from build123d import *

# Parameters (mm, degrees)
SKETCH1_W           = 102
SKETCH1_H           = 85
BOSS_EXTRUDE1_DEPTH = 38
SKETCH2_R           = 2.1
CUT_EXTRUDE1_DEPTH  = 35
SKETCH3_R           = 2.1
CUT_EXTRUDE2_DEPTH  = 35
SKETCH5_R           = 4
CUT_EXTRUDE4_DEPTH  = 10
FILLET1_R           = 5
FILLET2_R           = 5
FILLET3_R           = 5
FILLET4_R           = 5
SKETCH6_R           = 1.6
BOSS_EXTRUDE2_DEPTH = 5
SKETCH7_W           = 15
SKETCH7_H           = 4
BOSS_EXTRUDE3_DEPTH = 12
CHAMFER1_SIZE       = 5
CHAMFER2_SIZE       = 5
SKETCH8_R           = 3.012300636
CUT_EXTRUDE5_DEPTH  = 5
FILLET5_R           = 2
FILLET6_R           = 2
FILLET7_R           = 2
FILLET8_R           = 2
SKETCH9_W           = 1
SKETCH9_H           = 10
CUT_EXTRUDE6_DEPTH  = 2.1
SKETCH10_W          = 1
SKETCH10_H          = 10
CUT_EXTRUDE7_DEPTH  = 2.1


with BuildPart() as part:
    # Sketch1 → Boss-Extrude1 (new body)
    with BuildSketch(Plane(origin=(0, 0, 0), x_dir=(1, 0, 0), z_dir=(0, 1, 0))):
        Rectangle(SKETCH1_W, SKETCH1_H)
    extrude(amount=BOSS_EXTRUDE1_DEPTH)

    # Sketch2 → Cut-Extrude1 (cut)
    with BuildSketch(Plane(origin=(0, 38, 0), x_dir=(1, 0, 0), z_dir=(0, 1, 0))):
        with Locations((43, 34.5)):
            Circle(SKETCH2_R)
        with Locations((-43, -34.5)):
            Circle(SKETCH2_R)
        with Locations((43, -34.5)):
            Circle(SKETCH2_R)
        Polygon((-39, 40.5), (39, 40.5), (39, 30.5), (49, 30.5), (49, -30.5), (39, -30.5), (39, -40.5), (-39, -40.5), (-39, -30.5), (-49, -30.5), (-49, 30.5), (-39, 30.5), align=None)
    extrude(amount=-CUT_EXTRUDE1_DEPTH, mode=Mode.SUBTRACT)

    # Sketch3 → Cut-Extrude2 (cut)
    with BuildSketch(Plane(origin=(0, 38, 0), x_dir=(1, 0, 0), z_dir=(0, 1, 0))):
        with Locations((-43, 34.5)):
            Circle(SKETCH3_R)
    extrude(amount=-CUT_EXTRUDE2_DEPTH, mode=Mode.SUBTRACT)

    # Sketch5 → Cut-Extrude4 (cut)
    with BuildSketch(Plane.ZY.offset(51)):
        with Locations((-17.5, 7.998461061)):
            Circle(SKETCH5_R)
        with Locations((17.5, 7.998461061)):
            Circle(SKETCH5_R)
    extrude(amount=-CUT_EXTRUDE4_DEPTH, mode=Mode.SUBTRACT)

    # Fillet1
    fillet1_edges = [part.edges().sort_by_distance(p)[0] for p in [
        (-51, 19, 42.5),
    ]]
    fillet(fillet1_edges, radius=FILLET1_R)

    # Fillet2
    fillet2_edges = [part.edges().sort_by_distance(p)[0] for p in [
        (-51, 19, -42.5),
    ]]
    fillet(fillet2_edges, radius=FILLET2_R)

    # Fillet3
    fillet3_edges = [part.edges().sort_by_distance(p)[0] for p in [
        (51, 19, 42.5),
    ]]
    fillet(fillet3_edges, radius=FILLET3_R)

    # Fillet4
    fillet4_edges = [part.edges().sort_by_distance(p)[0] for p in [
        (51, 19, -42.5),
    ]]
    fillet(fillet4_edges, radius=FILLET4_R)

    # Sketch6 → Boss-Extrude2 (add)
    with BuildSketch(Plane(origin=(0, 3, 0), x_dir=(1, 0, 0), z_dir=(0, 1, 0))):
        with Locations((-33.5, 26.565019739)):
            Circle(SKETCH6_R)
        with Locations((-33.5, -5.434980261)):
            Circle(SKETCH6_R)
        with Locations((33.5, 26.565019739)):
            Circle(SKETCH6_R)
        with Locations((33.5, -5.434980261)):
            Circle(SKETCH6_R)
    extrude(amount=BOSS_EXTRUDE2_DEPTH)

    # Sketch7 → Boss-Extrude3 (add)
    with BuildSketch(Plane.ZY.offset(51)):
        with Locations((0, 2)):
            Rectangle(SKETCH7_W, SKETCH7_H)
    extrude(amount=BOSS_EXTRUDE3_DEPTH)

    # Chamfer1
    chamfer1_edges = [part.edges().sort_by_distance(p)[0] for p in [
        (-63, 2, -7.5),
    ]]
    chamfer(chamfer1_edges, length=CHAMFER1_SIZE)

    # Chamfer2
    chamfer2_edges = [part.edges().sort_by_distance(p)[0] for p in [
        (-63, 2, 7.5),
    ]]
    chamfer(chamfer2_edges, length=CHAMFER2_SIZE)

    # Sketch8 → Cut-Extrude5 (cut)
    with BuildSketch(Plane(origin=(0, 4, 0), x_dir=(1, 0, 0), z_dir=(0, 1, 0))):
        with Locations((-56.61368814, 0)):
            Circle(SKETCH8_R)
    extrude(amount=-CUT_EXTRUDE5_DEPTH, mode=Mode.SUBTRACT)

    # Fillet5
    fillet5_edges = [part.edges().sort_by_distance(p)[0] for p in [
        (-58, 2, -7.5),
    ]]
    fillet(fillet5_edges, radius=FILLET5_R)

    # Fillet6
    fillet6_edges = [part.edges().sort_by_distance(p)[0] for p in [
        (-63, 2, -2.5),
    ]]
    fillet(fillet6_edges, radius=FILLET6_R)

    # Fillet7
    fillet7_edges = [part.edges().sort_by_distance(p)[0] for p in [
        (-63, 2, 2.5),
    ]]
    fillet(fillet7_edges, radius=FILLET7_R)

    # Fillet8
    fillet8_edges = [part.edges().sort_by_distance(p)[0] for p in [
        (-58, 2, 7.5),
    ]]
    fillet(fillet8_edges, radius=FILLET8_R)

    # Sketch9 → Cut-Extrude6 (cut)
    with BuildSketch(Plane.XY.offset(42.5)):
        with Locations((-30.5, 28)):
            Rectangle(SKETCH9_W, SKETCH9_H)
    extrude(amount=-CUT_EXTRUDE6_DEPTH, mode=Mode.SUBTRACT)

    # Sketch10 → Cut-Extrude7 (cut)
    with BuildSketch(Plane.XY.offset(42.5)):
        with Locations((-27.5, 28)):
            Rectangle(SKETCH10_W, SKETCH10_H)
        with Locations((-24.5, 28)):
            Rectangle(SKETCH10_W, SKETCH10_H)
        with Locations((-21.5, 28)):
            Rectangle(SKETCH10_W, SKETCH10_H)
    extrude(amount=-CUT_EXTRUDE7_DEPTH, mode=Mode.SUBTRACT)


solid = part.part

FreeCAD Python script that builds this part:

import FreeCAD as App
import Part
import Sketcher

V = App.Vector


def edges_at(feature, points):
    """Names of the edges that pass closest to the given points."""
    edges = feature.Shape.Edges
    near = lambda p: min(range(len(edges)), key=lambda i: edges[i].distToShape(Part.Vertex(*p))[0])
    return sorted({f"Edge{near(p) + 1}" for p in points})


def add_polygon(sketch, points):
    """Adds a closed chain of lines whose ends are joined by coincident constraints."""
    first, n = sketch.GeometryCount, len(points)
    for a, b in zip(points, points[1:] + points[:1]):
        sketch.addGeometry(Part.LineSegment(App.Vector(*a, 0), App.Vector(*b, 0)), False)
    for i in range(n):
        sketch.addConstraint(Sketcher.Constraint("Coincident", first + i, 2, first + (i + 1) % n, 1))

doc = App.newDocument("Part")
params = doc.addObject("Spreadsheet::Sheet", "Params")
for row, (alias, value) in enumerate([
    ("sketch1_width", "102 mm"),
    ("sketch1_height", "85 mm"),
    ("pad1_length", "38 mm"),
    ("sketch2_diameter", "4.2 mm"),
    ("sketch2_width", "78 mm"),
    ("sketch2_width2", "10 mm"),
    ("sketch2_height", "61 mm"),
    ("pocket1_length", "35 mm"),
    ("sketch3_diameter", "4.2 mm"),
    ("pocket2_length", "35 mm"),
    ("sketch4_diameter", "8 mm"),
    ("pocket3_length", "10 mm"),
    ("fillet_radius", "5 mm"),
    ("fillet2_radius", "5 mm"),
    ("fillet3_radius", "5 mm"),
    ("fillet4_radius", "5 mm"),
    ("sketch5_diameter", "3.2 mm"),
    ("pad2_length", "5 mm"),
    ("sketch6_width", "4 mm"),
    ("sketch6_height", "15 mm"),
    ("pad3_length", "12 mm"),
    ("chamfer_size", "5 mm"),
    ("chamfer2_size", "5 mm"),
    ("pocket4_length", "5 mm"),
    ("fillet5_radius", "2 mm"),
    ("fillet6_radius", "2 mm"),
    ("fillet7_radius", "2 mm"),
    ("fillet8_radius", "2 mm"),
    ("sketch8_width", "1 mm"),
    ("sketch8_height", "10 mm"),
    ("pocket5_length", "2.1 mm"),
    ("sketch9_width", "1 mm"),
    ("sketch9_height", "10 mm"),
    ("pocket6_length", "2.1 mm"),
], start=1):
    params.set(f"A{row}", alias)
    params.set(f"B{row}", "=" + value)
    params.setAlias(f"B{row}", alias)

body = doc.addObject("PartDesign::Body", "Body")

sketch1 = body.newObject("Sketcher::SketchObject", "Sketch")
sketch1.AttachmentSupport = (doc.getObject("XZ_Plane"), [""])
sketch1.MapMode = "FlatFace"
add_polygon(sketch1, [(-51, -42), (-51, 42), (51, 42), (51, -42)])
sketch1.addConstraint([
    Sketcher.Constraint("Vertical", 0),
    Sketcher.Constraint("Horizontal", 1),
    Sketcher.Constraint("Vertical", 2),
    Sketcher.Constraint("Horizontal", 3),
    Sketcher.Constraint("Symmetric", 0, 2, 2, 2, -1, 1),
    Sketcher.Constraint("DistanceX", 1, 1, 1, 2, 102.0),
    Sketcher.Constraint("DistanceY", 0, 1, 0, 2, 85.0),
])
sketch1.setExpression("Constraints[9]", "Params.sketch1_width")
sketch1.setExpression("Constraints[10]", "Params.sketch1_height")
pad1 = body.newObject("PartDesign::Pad", "Pad")
pad1.Profile = sketch1
pad1.setExpression("Length", "Params.pad1_length")
pad1.Reversed = True

sketch2 = body.newObject("Sketcher::SketchObject", "Sketch001")
sketch2.AttachmentSupport = (doc.getObject("XZ_Plane"), [""])
sketch2.MapMode = "FlatFace"
sketch2.AttachmentOffset = App.Placement(V(0, 0, -38), App.Rotation())
sketch2.addGeometry(Part.Circle(V(43, -34.5, 0), V(0, 0, 1), 2.1), False)
sketch2.addGeometry(Part.Circle(V(-43, 34.5, 0), V(0, 0, 1), 2.1), False)
sketch2.addGeometry(Part.Circle(V(43, 34.5, 0), V(0, 0, 1), 2.1), False)
add_polygon(sketch2, [(39, -40.5), (-39, -40.5), (-39, -30.5), (-49, -30.5), (-49, 30.5), (-39, 30.5), (-39, 40.5), (39, 40.5), (39, 30.5), (49, 30.5), (49, -30.5), (39, -30.5)])
sketch2.addConstraint([
    Sketcher.Constraint("Horizontal", 3),
    Sketcher.Constraint("Vertical", 4),
    Sketcher.Constraint("Horizontal", 5),
    Sketcher.Constraint("Vertical", 6),
    Sketcher.Constraint("Horizontal", 7),
    Sketcher.Constraint("Vertical", 8),
    Sketcher.Constraint("Horizontal", 9),
    Sketcher.Constraint("Vertical", 10),
    Sketcher.Constraint("Horizontal", 11),
    Sketcher.Constraint("Vertical", 12),
    Sketcher.Constraint("Horizontal", 13),
    Sketcher.Constraint("Vertical", 14),
    Sketcher.Constraint("Equal", 0, 1),
    Sketcher.Constraint("Equal", 1, 2),
    Sketcher.Constraint("Symmetric", 0, 3, 1, 3, -1, 1),
    Sketcher.Constraint("Symmetric", 3, 2, 9, 2, -1, 1),
    Sketcher.Constraint("Symmetric", 5, 2, 11, 2, -1, 1),
    Sketcher.Constraint("Symmetric", 7, 2, 13, 2, -1, 1),
    Sketcher.Constraint("Symmetric", 1, 3, 2, 3, -2),
    Sketcher.Constraint("Symmetric", 7, 2, 10, 2, -2),
    Sketcher.Constraint("Equal", 13, 4),
    Sketcher.Constraint("Diameter", 0, 4.2),
    Sketcher.Constraint("DistanceX", 3, 2, 3, 1, 78.0),
    Sketcher.Constraint("DistanceX", 5, 2, 5, 1, 10.0),
    Sketcher.Constraint("DistanceY", 6, 1, 6, 2, 61.0),
    Sketcher.Constraint("DistanceX", -1, 1, 0, 3, 43.0),
    Sketcher.Constraint("DistanceY", 0, 3, 1, 3, 69.0),
])
sketch2.setExpression("Constraints[33]", "Params.sketch2_diameter")
sketch2.setExpression("Constraints[34]", "Params.sketch2_width")
sketch2.setExpression("Constraints[35]", "Params.sketch2_width2")
sketch2.setExpression("Constraints[36]", "Params.sketch2_height")
pocket1 = body.newObject("PartDesign::Pocket", "Pocket")
pocket1.Profile = sketch2
pocket1.setExpression("Length", "Params.pocket1_length")
pocket1.Reversed = True

sketch3 = body.newObject("Sketcher::SketchObject", "Sketch002")
sketch3.AttachmentSupport = (doc.getObject("XZ_Plane"), [""])
sketch3.MapMode = "FlatFace"
sketch3.AttachmentOffset = App.Placement(V(0, 0, -38), App.Rotation())
sketch3.addGeometry(Part.Circle(V(-43, -34.5, 0), V(0, 0, 1), 2.1), False)
sketch3.addConstraint([
    Sketcher.Constraint("Diameter", 0, 4.2),
    Sketcher.Constraint("DistanceX", 0, 3, -1, 1, 43.0),
    Sketcher.Constraint("DistanceY", 0, 3, -1, 1, 34.5),
])
sketch3.setExpression("Constraints[0]", "Params.sketch3_diameter")
pocket2 = body.newObject("PartDesign::Pocket", "Pocket001")
pocket2.Profile = sketch3
pocket2.setExpression("Length", "Params.pocket2_length")
pocket2.Reversed = True

sketch4 = body.newObject("Sketcher::SketchObject", "Sketch003")
sketch4.AttachmentSupport = (doc.getObject("YZ_Plane"), [""])
sketch4.MapMode = "FlatFace"
sketch4.AttachmentOffset = App.Placement(V(0, 0, -51), App.Rotation())
sketch4.addGeometry([
    Part.Circle(V(8, -17.5, 0), V(0, 0, 1), 4),
    Part.Circle(V(8, 17.5, 0), V(0, 0, 1), 4),
], False)
sketch4.addConstraint([
    Sketcher.Constraint("Equal", 0, 1),
    Sketcher.Constraint("Symmetric", 0, 3, 1, 3, -1),
    Sketcher.Constraint("Diameter", 0, 8.0),
    Sketcher.Constraint("DistanceY", 0, 3, 1, 3, 35.0),
    Sketcher.Constraint("DistanceX", -1, 1, 0, 3, 7.998461),
])
sketch4.setExpression("Constraints[2]", "Params.sketch4_diameter")
pocket3 = body.newObject("PartDesign::Pocket", "Pocket002")
pocket3.Profile = sketch4
pocket3.setExpression("Length", "Params.pocket3_length")
pocket3.Reversed = True
doc.recompute()

fillet = body.newObject("PartDesign::Fillet", "Fillet")
fillet.Base = (pocket3, edges_at(pocket3, [(-51, 19, 42.5)]))
fillet.setExpression("Radius", "Params.fillet_radius")
doc.recompute()

fillet2 = body.newObject("PartDesign::Fillet", "Fillet001")
fillet2.Base = (fillet, edges_at(fillet, [(-51, 19, -42.5)]))
fillet2.setExpression("Radius", "Params.fillet2_radius")
doc.recompute()

fillet3 = body.newObject("PartDesign::Fillet", "Fillet002")
fillet3.Base = (fillet2, edges_at(fillet2, [(51, 19, 42.5)]))
fillet3.setExpression("Radius", "Params.fillet3_radius")
doc.recompute()

fillet4 = body.newObject("PartDesign::Fillet", "Fillet003")
fillet4.Base = (fillet3, edges_at(fillet3, [(51, 19, -42.5)]))
fillet4.setExpression("Radius", "Params.fillet4_radius")

sketch5 = body.newObject("Sketcher::SketchObject", "Sketch004")
sketch5.AttachmentSupport = (doc.getObject("XZ_Plane"), [""])
sketch5.MapMode = "FlatFace"
sketch5.AttachmentOffset = App.Placement(V(0, 0, -3), App.Rotation())
sketch5.addGeometry([
    Part.Circle(V(-33.5, -26.6, 0), V(0, 0, 1), 1.6),
    Part.Circle(V(-33.5, 5.4, 0), V(0, 0, 1), 1.6),
    Part.Circle(V(33.5, -26.6, 0), V(0, 0, 1), 1.6),
    Part.Circle(V(33.5, 5.4, 0), V(0, 0, 1), 1.6),
], False)
sketch5.addConstraint([
    Sketcher.Constraint("Equal", 0, 1),
    Sketcher.Constraint("Equal", 1, 2),
    Sketcher.Constraint("Equal", 2, 3),
    Sketcher.Constraint("Symmetric", 0, 3, 2, 3, -2),
    Sketcher.Constraint("Symmetric", 1, 3, 3, 3, -2),
    Sketcher.Constraint("Vertical", 0, 3, 1, 3),
    Sketcher.Constraint("Diameter", 0, 3.2),
    Sketcher.Constraint("DistanceY", 0, 3, 1, 3, 32.0),
    Sketcher.Constraint("DistanceX", 0, 3, 2, 3, 67.0),
    Sketcher.Constraint("DistanceY", 0, 3, -1, 1, 26.56502),
])
sketch5.setExpression("Constraints[6]", "Params.sketch5_diameter")
pad2 = body.newObject("PartDesign::Pad", "Pad001")
pad2.Profile = sketch5
pad2.setExpression("Length", "Params.pad2_length")
pad2.Reversed = True

sketch6 = body.newObject("Sketcher::SketchObject", "Sketch005")
sketch6.AttachmentSupport = (doc.getObject("YZ_Plane"), [""])
sketch6.MapMode = "FlatFace"
sketch6.AttachmentOffset = App.Placement(V(0, 0, -51), App.Rotation())
add_polygon(sketch6, [(4, -7.5), (0, -7.5), (0, 7.5), (4, 7.5)])
sketch6.addConstraint([
    Sketcher.Constraint("Horizontal", 0),
    Sketcher.Constraint("Vertical", 1),
    Sketcher.Constraint("Horizontal", 2),
    Sketcher.Constraint("Vertical", 3),
    Sketcher.Constraint("Symmetric", 0, 2, 1, 2, -1, 1),
    Sketcher.Constraint("DistanceX", 0, 2, 0, 1, 4.0),
    Sketcher.Constraint("DistanceY", 1, 1, 1, 2, 15.0),
])
sketch6.setExpression("Constraints[9]", "Params.sketch6_width")
sketch6.setExpression("Constraints[10]", "Params.sketch6_height")
pad3 = body.newObject("PartDesign::Pad", "Pad002")
pad3.Profile = sketch6
pad3.setExpression("Length", "Params.pad3_length")
pad3.Reversed = True
doc.recompute()

chamfer = body.newObject("PartDesign::Chamfer", "Chamfer")
chamfer.Base = (pad3, edges_at(pad3, [(-63, 2, -7.5)]))
chamfer.setExpression("Size", "Params.chamfer_size")
doc.recompute()

chamfer2 = body.newObject("PartDesign::Chamfer", "Chamfer001")
chamfer2.Base = (chamfer, edges_at(chamfer, [(-63, 2, 7.5)]))
chamfer2.setExpression("Size", "Params.chamfer2_size")

sketch7 = body.newObject("Sketcher::SketchObject", "Sketch006")
sketch7.AttachmentSupport = (doc.getObject("XZ_Plane"), [""])
sketch7.MapMode = "FlatFace"
sketch7.AttachmentOffset = App.Placement(V(0, 0, -4), App.Rotation())
sketch7.addGeometry(Part.Circle(V(-56.6, 0, 0), V(0, 0, 1), 3), False)
sketch7.addConstraint([
    Sketcher.Constraint("PointOnObject", 0, 3, -1),
    Sketcher.Constraint("Diameter", 0, 6.024601),
    Sketcher.Constraint("DistanceX", 0, 3, -1, 1, 56.613688),
])
pocket4 = body.newObject("PartDesign::Pocket", "Pocket003")
pocket4.Profile = sketch7
pocket4.setExpression("Length", "Params.pocket4_length")
pocket4.Reversed = True
doc.recompute()

fillet5 = body.newObject("PartDesign::Fillet", "Fillet004")
fillet5.Base = (pocket4, edges_at(pocket4, [(-58, 2, -7.5)]))
fillet5.setExpression("Radius", "Params.fillet5_radius")
doc.recompute()

fillet6 = body.newObject("PartDesign::Fillet", "Fillet005")
fillet6.Base = (fillet5, edges_at(fillet5, [(-63, 2, -2.5)]))
fillet6.setExpression("Radius", "Params.fillet6_radius")
doc.recompute()

fillet7 = body.newObject("PartDesign::Fillet", "Fillet006")
fillet7.Base = (fillet6, edges_at(fillet6, [(-63, 2, 2.5)]))
fillet7.setExpression("Radius", "Params.fillet7_radius")
doc.recompute()

fillet8 = body.newObject("PartDesign::Fillet", "Fillet007")
fillet8.Base = (fillet7, edges_at(fillet7, [(-58, 2, 7.5)]))
fillet8.setExpression("Radius", "Params.fillet8_radius")

sketch8 = body.newObject("Sketcher::SketchObject", "Sketch007")
sketch8.AttachmentSupport = (doc.getObject("XY_Plane"), [""])
sketch8.MapMode = "FlatFace"
sketch8.AttachmentOffset = App.Placement(V(0, 0, 42.5), App.Rotation())
add_polygon(sketch8, [(-31, 33), (-31, 23), (-30, 23), (-30, 33)])
sketch8.addConstraint([
    Sketcher.Constraint("Vertical", 0),
    Sketcher.Constraint("Horizontal", 1),
    Sketcher.Constraint("Vertical", 2),
    Sketcher.Constraint("Horizontal", 3),
    Sketcher.Constraint("DistanceX", 1, 1, 1, 2, 1.0),
    Sketcher.Constraint("DistanceY", 0, 2, 0, 1, 10.0),
    Sketcher.Constraint("DistanceX", 0, 2, -1, 1, 31.0),
    Sketcher.Constraint("DistanceY", -1, 1, 0, 2, 23.0),
])
sketch8.setExpression("Constraints[8]", "Params.sketch8_width")
sketch8.setExpression("Constraints[9]", "Params.sketch8_height")
pocket5 = body.newObject("PartDesign::Pocket", "Pocket004")
pocket5.Profile = sketch8
pocket5.setExpression("Length", "Params.pocket5_length")

sketch9 = body.newObject("Sketcher::SketchObject", "Sketch008")
sketch9.AttachmentSupport = (doc.getObject("XY_Plane"), [""])
sketch9.MapMode = "FlatFace"
sketch9.AttachmentOffset = App.Placement(V(0, 0, 42.5), App.Rotation())
add_polygon(sketch9, [(-28, 33), (-28, 23), (-27, 23), (-27, 33)])
add_polygon(sketch9, [(-25, 33), (-25, 23), (-24, 23), (-24, 33)])
add_polygon(sketch9, [(-22, 33), (-22, 23), (-21, 23), (-21, 33)])
sketch9.addConstraint([
    Sketcher.Constraint("Vertical", 0),
    Sketcher.Constraint("Horizontal", 1),
    Sketcher.Constraint("Vertical", 2),
    Sketcher.Constraint("Horizontal", 3),
    Sketcher.Constraint("Vertical", 4),
    Sketcher.Constraint("Horizontal", 5),
    Sketcher.Constraint("Vertical", 6),
    Sketcher.Constraint("Horizontal", 7),
    Sketcher.Constraint("Vertical", 8),
    Sketcher.Constraint("Horizontal", 9),
    Sketcher.Constraint("Vertical", 10),
    Sketcher.Constraint("Horizontal", 11),
    Sketcher.Constraint("Horizontal", 1, 2, 4, 2),
    Sketcher.Constraint("Horizontal", 3, 2, 6, 2),
    Sketcher.Constraint("Horizontal", 5, 2, 8, 2),
    Sketcher.Constraint("Horizontal", 7, 2, 10, 2),
    Sketcher.Constraint("Equal", 3, 5),
    Sketcher.Constraint("Equal", 7, 9),
    Sketcher.Constraint("DistanceX", 1, 1, 1, 2, 1.0),
    Sketcher.Constraint("DistanceY", 0, 2, 0, 1, 10.0),
    Sketcher.Constraint("DistanceX", 0, 2, -1, 1, 28.0),
    Sketcher.Constraint("DistanceY", -1, 1, 0, 2, 23.0),
    Sketcher.Constraint("DistanceX", 4, 2, -1, 1, 25.0),
    Sketcher.Constraint("DistanceX", 8, 2, -1, 1, 22.0),
])
sketch9.setExpression("Constraints[30]", "Params.sketch9_width")
sketch9.setExpression("Constraints[31]", "Params.sketch9_height")
pocket6 = body.newObject("PartDesign::Pocket", "Pocket005")
pocket6.Profile = sketch9
pocket6.setExpression("Length", "Params.pocket6_length")

doc.recompute()
